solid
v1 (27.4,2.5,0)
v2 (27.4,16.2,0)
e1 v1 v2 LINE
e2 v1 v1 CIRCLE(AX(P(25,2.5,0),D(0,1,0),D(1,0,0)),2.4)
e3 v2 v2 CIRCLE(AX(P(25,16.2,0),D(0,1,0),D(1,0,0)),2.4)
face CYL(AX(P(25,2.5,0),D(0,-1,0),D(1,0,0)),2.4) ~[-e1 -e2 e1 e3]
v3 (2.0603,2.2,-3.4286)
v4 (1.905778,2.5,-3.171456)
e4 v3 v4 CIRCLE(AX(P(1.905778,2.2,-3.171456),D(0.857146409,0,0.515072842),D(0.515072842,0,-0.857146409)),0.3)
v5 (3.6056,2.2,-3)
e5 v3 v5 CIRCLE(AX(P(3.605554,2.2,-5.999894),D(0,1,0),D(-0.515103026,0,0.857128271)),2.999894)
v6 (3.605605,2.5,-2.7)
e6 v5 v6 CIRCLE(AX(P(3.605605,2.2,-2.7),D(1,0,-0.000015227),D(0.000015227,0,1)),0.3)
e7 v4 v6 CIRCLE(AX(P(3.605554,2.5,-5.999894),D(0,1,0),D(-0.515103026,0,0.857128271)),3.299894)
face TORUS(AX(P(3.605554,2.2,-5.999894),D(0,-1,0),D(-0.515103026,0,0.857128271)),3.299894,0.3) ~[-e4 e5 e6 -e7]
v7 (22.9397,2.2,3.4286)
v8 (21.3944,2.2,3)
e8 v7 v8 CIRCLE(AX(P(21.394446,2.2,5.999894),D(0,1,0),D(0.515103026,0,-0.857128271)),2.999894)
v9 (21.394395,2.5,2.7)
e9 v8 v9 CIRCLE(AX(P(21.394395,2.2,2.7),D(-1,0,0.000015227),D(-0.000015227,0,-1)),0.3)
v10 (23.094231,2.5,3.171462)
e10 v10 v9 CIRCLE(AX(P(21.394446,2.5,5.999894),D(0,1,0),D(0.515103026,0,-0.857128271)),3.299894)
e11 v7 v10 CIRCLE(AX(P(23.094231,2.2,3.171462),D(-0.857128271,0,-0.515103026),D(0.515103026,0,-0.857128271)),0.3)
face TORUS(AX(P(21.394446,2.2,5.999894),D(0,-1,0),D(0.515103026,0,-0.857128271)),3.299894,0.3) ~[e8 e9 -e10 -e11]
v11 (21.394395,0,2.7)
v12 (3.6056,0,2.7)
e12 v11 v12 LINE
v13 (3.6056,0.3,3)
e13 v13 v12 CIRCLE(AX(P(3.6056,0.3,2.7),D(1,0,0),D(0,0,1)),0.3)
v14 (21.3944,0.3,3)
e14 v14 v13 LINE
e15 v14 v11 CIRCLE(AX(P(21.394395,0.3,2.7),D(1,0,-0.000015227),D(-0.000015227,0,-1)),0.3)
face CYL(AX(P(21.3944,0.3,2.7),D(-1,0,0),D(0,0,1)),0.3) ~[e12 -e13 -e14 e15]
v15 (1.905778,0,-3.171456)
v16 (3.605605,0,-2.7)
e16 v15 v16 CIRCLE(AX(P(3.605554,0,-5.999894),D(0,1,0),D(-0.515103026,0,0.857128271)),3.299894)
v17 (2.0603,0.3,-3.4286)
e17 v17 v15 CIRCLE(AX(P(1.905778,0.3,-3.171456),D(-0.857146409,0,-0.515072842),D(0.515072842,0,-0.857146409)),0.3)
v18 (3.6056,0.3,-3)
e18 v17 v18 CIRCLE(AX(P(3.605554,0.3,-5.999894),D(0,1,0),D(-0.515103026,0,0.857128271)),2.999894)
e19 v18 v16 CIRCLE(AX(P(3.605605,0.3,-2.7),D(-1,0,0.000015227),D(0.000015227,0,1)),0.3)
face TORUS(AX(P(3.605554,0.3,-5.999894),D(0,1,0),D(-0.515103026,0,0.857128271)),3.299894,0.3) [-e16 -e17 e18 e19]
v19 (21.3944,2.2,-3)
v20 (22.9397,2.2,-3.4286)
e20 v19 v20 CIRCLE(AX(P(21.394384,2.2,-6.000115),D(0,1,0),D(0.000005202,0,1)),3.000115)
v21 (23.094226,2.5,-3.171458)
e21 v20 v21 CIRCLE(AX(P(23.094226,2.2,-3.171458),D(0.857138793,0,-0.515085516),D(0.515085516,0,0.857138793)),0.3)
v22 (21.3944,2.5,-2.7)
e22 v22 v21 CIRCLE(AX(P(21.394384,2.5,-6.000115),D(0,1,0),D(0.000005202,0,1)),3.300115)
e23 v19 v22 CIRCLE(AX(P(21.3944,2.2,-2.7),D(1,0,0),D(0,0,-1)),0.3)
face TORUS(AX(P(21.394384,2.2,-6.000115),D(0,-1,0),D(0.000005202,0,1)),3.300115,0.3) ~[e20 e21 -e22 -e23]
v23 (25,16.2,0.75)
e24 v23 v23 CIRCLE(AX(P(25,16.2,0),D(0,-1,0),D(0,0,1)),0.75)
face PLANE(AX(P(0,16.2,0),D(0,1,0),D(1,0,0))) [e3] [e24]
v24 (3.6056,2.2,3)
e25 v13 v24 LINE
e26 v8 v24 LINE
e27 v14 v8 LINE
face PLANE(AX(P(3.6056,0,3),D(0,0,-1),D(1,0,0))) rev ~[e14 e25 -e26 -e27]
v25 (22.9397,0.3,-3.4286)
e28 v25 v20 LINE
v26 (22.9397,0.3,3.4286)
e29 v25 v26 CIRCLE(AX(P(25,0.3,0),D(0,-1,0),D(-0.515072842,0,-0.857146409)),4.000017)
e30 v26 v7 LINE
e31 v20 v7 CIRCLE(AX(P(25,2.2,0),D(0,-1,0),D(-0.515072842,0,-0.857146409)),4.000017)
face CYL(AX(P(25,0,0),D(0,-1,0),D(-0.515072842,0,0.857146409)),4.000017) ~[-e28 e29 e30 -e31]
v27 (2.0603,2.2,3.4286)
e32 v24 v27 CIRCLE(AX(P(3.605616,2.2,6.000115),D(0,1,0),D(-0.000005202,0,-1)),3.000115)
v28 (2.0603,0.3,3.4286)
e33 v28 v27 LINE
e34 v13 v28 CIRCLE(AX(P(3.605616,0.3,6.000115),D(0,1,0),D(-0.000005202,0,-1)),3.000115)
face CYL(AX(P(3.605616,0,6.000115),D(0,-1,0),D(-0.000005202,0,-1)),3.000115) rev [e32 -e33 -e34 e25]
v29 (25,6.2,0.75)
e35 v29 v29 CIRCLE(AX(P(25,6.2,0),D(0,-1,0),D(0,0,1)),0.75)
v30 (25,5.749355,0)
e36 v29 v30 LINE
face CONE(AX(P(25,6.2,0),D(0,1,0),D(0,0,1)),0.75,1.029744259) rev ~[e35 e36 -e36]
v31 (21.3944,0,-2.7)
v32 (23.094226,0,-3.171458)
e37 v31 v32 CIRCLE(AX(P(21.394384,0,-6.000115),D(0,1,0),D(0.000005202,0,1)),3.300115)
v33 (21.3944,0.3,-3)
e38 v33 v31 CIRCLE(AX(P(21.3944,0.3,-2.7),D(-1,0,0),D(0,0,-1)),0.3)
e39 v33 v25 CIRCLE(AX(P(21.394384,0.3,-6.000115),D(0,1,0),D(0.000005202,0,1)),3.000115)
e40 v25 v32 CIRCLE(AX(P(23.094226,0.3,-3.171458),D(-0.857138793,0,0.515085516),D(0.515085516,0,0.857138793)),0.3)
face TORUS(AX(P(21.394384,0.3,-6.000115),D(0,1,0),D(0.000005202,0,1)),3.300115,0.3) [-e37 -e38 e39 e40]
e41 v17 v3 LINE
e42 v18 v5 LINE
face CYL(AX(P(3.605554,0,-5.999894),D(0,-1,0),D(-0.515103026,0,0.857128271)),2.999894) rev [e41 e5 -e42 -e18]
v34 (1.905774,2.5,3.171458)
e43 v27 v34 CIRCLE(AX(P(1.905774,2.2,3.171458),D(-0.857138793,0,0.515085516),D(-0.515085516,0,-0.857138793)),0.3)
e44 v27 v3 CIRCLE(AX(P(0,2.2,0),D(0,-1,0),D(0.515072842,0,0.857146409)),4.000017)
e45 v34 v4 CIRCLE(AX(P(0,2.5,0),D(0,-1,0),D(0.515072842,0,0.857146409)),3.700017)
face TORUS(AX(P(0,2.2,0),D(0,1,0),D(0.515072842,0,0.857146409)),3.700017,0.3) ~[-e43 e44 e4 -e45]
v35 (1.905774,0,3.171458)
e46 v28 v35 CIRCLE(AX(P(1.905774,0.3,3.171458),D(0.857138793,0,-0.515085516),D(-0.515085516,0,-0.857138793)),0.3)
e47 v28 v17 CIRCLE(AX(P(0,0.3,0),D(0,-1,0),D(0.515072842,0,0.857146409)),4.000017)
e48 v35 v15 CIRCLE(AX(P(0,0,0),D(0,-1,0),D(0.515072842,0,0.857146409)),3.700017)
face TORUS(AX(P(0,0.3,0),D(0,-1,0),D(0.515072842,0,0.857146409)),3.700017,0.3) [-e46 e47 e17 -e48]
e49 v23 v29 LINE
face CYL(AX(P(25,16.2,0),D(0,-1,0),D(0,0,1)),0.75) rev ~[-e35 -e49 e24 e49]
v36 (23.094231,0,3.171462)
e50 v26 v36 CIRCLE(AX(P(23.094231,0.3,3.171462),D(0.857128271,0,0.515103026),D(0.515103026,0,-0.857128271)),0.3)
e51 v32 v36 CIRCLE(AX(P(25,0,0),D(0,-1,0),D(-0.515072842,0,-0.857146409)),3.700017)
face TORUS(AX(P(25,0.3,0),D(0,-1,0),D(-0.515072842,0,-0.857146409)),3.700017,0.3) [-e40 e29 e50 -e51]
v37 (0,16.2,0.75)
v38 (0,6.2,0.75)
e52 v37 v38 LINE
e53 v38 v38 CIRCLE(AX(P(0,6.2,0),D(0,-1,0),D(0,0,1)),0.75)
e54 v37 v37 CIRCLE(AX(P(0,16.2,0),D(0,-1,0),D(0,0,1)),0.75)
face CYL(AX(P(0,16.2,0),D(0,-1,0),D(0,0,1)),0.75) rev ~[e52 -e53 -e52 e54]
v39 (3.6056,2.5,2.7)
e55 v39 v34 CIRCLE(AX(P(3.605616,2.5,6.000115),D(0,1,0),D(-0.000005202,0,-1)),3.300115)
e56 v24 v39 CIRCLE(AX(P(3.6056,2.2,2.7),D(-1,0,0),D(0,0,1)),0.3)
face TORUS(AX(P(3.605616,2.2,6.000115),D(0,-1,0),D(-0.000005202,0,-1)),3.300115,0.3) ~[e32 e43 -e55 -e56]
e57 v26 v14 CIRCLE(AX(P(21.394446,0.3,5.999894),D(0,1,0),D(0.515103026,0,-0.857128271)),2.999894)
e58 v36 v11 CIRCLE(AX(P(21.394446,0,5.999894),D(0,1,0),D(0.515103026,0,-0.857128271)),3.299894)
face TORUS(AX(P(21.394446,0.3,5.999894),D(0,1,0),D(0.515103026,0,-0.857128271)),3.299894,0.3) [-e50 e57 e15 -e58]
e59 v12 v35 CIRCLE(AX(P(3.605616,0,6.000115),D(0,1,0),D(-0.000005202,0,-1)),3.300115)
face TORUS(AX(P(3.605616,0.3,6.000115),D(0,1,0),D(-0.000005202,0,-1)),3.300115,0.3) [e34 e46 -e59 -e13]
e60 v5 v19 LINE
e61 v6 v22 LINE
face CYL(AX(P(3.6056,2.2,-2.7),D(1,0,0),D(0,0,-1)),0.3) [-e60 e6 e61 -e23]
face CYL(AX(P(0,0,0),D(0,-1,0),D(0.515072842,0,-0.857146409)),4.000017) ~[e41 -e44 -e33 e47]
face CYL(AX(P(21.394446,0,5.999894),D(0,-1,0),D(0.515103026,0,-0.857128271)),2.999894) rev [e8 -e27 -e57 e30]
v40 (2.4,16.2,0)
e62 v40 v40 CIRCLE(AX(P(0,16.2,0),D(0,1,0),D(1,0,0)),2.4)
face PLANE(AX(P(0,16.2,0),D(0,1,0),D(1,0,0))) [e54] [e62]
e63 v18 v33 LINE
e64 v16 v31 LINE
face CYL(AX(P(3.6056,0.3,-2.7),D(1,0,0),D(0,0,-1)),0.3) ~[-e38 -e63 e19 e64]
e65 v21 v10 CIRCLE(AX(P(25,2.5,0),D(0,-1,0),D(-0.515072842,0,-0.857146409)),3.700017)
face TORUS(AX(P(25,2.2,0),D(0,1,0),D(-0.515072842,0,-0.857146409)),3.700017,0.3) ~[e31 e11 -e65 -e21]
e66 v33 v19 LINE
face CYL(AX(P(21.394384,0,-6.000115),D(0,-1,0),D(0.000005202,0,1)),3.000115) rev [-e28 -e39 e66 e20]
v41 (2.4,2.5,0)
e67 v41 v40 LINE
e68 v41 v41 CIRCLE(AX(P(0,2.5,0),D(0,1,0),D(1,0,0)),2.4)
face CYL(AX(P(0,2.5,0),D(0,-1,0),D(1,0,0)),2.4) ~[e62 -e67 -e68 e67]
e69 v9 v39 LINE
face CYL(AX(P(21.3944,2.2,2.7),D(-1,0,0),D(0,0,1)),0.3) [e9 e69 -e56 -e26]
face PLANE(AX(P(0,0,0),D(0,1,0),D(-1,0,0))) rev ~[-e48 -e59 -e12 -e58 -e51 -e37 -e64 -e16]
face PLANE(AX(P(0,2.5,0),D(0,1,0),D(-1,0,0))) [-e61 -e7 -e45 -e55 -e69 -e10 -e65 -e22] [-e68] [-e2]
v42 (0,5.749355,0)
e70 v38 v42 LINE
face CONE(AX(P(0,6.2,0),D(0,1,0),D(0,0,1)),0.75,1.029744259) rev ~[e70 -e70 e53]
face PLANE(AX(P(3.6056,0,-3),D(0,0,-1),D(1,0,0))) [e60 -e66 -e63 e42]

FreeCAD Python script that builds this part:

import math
import FreeCAD as App
import Part
import Sketcher

V = App.Vector


def edges_at(feature, points):
    """Names of the edges that pass closest to the given points."""
    edges = feature.Shape.Edges
    near = lambda p: min(range(len(edges)), key=lambda i: edges[i].distToShape(Part.Vertex(*p))[0])
    return sorted({f"Edge{near(p) + 1}" for p in points})

doc = App.newDocument("Part")
body = doc.addObject("PartDesign::Body", "Body")

# Sketch on XZ plane
sketch1 = body.newObject("Sketcher::SketchObject", "Sketch")
sketch1.AttachmentSupport = (doc.getObject("XZ_Plane"), [""])
sketch1.MapMode = "FlatFace"
sketch1.addGeometry([
    Part.ArcOfCircle(Part.Circle(V(3.6056, -6, 0), V(0, 0, 1), 3.000008), math.radians(90), math.radians(121.004044)),  # 0
    Part.ArcOfCircle(Part.Circle(V(0, 0, 0), V(0, 0, 1), 4.000017), math.radians(58.997676), math.radians(301.002324)),  # 1
    Part.ArcOfCircle(Part.Circle(V(3.6056, 6, 0), V(0, 0, 1), 3), math.radians(-121.004044), math.radians(-90)),  # 2
    Part.LineSegment(V(3.6056, 3, 0), V(21.3944, 3, 0)),  # 3
    Part.ArcOfCircle(Part.Circle(V(21.3944, 6, 0), V(0, 0, 1), 3.000008), math.radians(-90), math.radians(-58.995956)),  # 4
    Part.ArcOfCircle(Part.Circle(V(25, 0, 0), V(0, 0, 1), 4.000017), math.radians(-121.002324), math.radians(121.002324)),  # 5
    Part.ArcOfCircle(Part.Circle(V(21.3944, -6, 0), V(0, 0, 1), 3), math.radians(58.995956), math.radians(90)),  # 6
    Part.LineSegment(V(21.3944, -3, 0), V(3.6056, -3, 0)),  # 7
], False)
sketch1.addConstraint([
    Sketcher.Constraint("Tangent", 0, 2, 1, 2),
    Sketcher.Constraint("Tangent", 1, 1, 2, 1),
    Sketcher.Constraint("Tangent", 2, 2, 3, 1),
    Sketcher.Constraint("Tangent", 3, 2, 4, 1),
    Sketcher.Constraint("Tangent", 4, 2, 5, 2),
    Sketcher.Constraint("Tangent", 5, 1, 6, 1),
    Sketcher.Constraint("Tangent", 6, 2, 7, 1),
    Sketcher.Constraint("Tangent", 7, 2, 0, 1),
    Sketcher.Constraint("Horizontal", 3),
    Sketcher.Constraint("Horizontal", 7),
    Sketcher.Constraint("Coincident", 1, 3, -1, 1),
    Sketcher.Constraint("Equal", 0, 2),
    Sketcher.Constraint("Equal", 2, 4),
    Sketcher.Constraint("Equal", 1, 5),
    Sketcher.Constraint("Equal", 4, 6),
    Sketcher.Constraint("Symmetric", 4, 3, 6, 3, -1),
    Sketcher.Constraint("Radius", 0, 3.0),
    Sketcher.Constraint("Radius", 1, 4.0),
    Sketcher.Constraint("DistanceY", 0, 3, -1, 1, 6.0),
    Sketcher.Constraint("DistanceX", -1, 1, 5, 3, 25.0),
])
pad1 = body.newObject("PartDesign::Pad", "Pad")
pad1.Profile = sketch1
pad1.Length = 2.5
pad1.Reversed = True
doc.recompute()

fillet = body.newObject("PartDesign::Fillet", "Fillet")
fillet.Base = (pad1, edges_at(pad1, [
    (22.196, 0, 3.109),
    (29, 0, 0),
    (22.196, 0, -3.109),
    (12.5, 0, -3),
    (2.804, 0, -3.109),
    (-4, 0, 0),
    (2.804, 0, 3.109),
    (12.5, 0, 3),
    (22.196, 2.5, 3.109),
    (29, 2.5, 0),
    (22.196, 2.5, -3.109),
    (12.5, 2.5, -3),
    (2.804, 2.5, -3.109),
    (-4, 2.5, 0),
    (2.804, 2.5, 3.109),
    (12.5, 2.5, 3),
]))
fillet.Radius = 0.3

# Sketch on XZ plane
sketch2 = body.newObject("Sketcher::SketchObject", "Sketch001")
sketch2.AttachmentSupport = (doc.getObject("XZ_Plane"), [""])
sketch2.MapMode = "FlatFace"
sketch2.AttachmentOffset = App.Placement(V(0, 0, -2.5), App.Rotation())
sketch2.addGeometry([
    Part.Circle(V(0, 0, 0), V(0, 0, 1), 2.4),
    Part.Circle(V(25, 0, 0), V(0, 0, 1), 2.4),
], False)
sketch2.addConstraint([
    Sketcher.Constraint("Coincident", 0, 3, -1, 1),
    Sketcher.Constraint("Equal", 0, 1),
    Sketcher.Constraint("PointOnObject", 1, 3, -1),
    Sketcher.Constraint("Diameter", 0, 4.8),
    Sketcher.Constraint("DistanceX", -1, 1, 1, 3, 25.0),
])
pad2 = body.newObject("PartDesign::Pad", "Pad001")
pad2.Profile = sketch2
pad2.Length = 13.7
pad2.Reversed = True

# Sketch on XZ plane
sketch3 = body.newObject("Sketcher::SketchObject", "Sketch002")
sketch3.AttachmentSupport = (doc.getObject("XZ_Plane"), [""])
sketch3.MapMode = "FlatFace"
sketch3.AttachmentOffset = App.Placement(V(0, 0, -16.2), App.Rotation())
sketch3.addGeometry([
    Part.Circle(V(0, 0, 0), V(0, 0, 1), 0.75),
    Part.Circle(V(25, 0, 0), V(0, 0, 1), 0.75),
], False)
sketch3.addConstraint([
    Sketcher.Constraint("Coincident", 0, 3, -1, 1),
    Sketcher.Constraint("Equal", 0, 1),
    Sketcher.Constraint("PointOnObject", 1, 3, -1),
    Sketcher.Constraint("Diameter", 0, 1.5),
    Sketcher.Constraint("DistanceX", -1, 1, 1, 3, 25.0),
])
doc.recompute()
hole = body.newObject("PartDesign::Hole", "Hole")
hole.Profile = sketch3
hole.ThreadType = "None"
hole.Diameter = 1.5
hole.DepthType = "Dimension"
hole.Depth = 10
hole.DrillPoint = "Angled"
hole.DrillPointAngle = 118
hole.Reversed = True

doc.recompute()
